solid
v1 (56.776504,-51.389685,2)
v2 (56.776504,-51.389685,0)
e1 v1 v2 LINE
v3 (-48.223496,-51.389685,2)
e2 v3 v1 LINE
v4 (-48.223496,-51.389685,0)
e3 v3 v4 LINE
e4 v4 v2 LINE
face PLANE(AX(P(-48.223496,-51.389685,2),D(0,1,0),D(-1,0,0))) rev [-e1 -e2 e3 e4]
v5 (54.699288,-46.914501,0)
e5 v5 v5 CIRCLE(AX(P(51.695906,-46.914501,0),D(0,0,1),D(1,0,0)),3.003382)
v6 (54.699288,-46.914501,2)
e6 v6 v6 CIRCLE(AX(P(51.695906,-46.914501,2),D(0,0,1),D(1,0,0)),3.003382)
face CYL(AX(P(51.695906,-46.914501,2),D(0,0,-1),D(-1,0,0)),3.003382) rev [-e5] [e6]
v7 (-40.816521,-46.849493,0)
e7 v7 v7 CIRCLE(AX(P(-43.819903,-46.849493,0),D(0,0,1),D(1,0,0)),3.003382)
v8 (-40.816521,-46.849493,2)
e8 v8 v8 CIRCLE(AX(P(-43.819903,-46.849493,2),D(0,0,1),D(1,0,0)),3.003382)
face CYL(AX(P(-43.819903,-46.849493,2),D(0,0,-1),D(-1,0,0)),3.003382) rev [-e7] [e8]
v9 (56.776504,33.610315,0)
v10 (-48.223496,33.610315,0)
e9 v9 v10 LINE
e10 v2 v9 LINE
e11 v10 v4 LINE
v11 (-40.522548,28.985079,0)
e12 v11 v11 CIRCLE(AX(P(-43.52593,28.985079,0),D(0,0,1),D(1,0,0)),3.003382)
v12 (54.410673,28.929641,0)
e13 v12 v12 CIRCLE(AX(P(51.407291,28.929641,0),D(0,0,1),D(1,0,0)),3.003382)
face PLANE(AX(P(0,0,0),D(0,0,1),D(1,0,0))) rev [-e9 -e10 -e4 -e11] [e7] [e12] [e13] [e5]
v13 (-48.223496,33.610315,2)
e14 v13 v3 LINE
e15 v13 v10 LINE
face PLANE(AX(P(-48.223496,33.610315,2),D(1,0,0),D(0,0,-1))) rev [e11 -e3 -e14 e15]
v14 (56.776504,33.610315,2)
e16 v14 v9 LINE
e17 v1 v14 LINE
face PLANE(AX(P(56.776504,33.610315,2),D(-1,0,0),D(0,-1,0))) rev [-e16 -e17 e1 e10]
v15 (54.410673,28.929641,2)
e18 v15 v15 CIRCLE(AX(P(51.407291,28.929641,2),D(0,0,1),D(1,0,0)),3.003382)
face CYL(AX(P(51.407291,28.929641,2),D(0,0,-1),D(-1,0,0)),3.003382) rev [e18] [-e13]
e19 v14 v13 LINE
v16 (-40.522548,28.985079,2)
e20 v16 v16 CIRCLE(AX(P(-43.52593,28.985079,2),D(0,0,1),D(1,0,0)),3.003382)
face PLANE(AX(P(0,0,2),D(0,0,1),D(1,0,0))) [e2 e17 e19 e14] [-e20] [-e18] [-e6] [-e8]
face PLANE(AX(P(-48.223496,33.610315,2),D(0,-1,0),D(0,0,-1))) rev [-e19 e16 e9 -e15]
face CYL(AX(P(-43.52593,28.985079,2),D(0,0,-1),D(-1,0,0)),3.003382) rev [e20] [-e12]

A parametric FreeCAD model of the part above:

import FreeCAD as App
import Part
import Sketcher
from FreeCAD import Vector


def add_polygon(sketch, points):
    """Adds a closed chain of lines whose ends are joined by coincident constraints."""
    first, n = sketch.GeometryCount, len(points)
    for a, b in zip(points, points[1:] + points[:1]):
        sketch.addGeometry(Part.LineSegment(App.Vector(*a, 0), App.Vector(*b, 0)), False)
    for i in range(n):
        sketch.addConstraint(Sketcher.Constraint("Coincident", first + i, 2, first + (i + 1) % n, 1))

doc = App.newDocument("Part")
body = doc.addObject("PartDesign::Body", "Body")

# Sketch on XY plane
sketch1 = body.newObject("Sketcher::SketchObject", "Sketch")
sketch1.AttachmentSupport = (doc.getObject("XY_Plane"), [""])
sketch1.MapMode = "FlatFace"
add_polygon(sketch1, [(-48.223496, 33.610315), (-48.223496, -51.389685), (56.776504, -51.389685), (56.776504, 33.610315)])  # lines 0-3
sketch1.addGeometry(Part.Circle(Vector(-43.819903, -46.849493, 0), Vector(0, 0, 1), 3.003382), False)  # 4
sketch1.addGeometry(Part.Circle(Vector(51.695906, -46.914501, 0), Vector(0, 0, 1), 3.003382), False)  # 5
sketch1.addGeometry(Part.Circle(Vector(-43.52593, 28.985079, 0), Vector(0, 0, 1), 3.003382), False)  # 6
sketch1.addGeometry(Part.Circle(Vector(51.407291, 28.929641, 0), Vector(0, 0, 1), 3.003382), False)  # 7
sketch1.addConstraint([
    Sketcher.Constraint("Vertical", 0),
    Sketcher.Constraint("Horizontal", 1),
    Sketcher.Constraint("Vertical", 2),
    Sketcher.Constraint("Horizontal", 3),
    Sketcher.Constraint("Equal", 4, 5),
    Sketcher.Constraint("Equal", 5, 6),
    Sketcher.Constraint("Equal", 6, 7),
    Sketcher.Constraint("DistanceX", 1, 1, 1, 2, 105.0),
    Sketcher.Constraint("DistanceY", 0, 2, 0, 1, 85.0),
    Sketcher.Constraint("Diameter", 4, 6.006764),
    Sketcher.Constraint("DistanceY", 5, 3, -1, 1, 46.914501),
    Sketcher.Constraint("DistanceX", 6, 3, -1, 1, 43.52593),
    Sketcher.Constraint("DistanceY", -1, 1, 6, 3, 28.985079),
    Sketcher.Constraint("DistanceX", -1, 1, 7, 3, 51.407291),
    Sketcher.Constraint("DistanceY", -1, 1, 7, 3, 28.929641),
    Sketcher.Constraint("DistanceX", 4, 3, 5, 3, 95.51581),
    Sketcher.Constraint("DistanceY", 4, 3, 6, 3, 75.834572),
    Sketcher.Constraint("DistanceY", 0, 2, 4, 3, 4.540192),
    Sketcher.Constraint("DistanceX", 4, 3, -1, 1, 43.819903),
    Sketcher.Constraint("DistanceX", 0, 2, -1, 1, 48.223496),
])
pad1 = body.newObject("PartDesign::Pad", "Pad")
pad1.Profile = sketch1
pad1.Length = 2

doc.recompute()
